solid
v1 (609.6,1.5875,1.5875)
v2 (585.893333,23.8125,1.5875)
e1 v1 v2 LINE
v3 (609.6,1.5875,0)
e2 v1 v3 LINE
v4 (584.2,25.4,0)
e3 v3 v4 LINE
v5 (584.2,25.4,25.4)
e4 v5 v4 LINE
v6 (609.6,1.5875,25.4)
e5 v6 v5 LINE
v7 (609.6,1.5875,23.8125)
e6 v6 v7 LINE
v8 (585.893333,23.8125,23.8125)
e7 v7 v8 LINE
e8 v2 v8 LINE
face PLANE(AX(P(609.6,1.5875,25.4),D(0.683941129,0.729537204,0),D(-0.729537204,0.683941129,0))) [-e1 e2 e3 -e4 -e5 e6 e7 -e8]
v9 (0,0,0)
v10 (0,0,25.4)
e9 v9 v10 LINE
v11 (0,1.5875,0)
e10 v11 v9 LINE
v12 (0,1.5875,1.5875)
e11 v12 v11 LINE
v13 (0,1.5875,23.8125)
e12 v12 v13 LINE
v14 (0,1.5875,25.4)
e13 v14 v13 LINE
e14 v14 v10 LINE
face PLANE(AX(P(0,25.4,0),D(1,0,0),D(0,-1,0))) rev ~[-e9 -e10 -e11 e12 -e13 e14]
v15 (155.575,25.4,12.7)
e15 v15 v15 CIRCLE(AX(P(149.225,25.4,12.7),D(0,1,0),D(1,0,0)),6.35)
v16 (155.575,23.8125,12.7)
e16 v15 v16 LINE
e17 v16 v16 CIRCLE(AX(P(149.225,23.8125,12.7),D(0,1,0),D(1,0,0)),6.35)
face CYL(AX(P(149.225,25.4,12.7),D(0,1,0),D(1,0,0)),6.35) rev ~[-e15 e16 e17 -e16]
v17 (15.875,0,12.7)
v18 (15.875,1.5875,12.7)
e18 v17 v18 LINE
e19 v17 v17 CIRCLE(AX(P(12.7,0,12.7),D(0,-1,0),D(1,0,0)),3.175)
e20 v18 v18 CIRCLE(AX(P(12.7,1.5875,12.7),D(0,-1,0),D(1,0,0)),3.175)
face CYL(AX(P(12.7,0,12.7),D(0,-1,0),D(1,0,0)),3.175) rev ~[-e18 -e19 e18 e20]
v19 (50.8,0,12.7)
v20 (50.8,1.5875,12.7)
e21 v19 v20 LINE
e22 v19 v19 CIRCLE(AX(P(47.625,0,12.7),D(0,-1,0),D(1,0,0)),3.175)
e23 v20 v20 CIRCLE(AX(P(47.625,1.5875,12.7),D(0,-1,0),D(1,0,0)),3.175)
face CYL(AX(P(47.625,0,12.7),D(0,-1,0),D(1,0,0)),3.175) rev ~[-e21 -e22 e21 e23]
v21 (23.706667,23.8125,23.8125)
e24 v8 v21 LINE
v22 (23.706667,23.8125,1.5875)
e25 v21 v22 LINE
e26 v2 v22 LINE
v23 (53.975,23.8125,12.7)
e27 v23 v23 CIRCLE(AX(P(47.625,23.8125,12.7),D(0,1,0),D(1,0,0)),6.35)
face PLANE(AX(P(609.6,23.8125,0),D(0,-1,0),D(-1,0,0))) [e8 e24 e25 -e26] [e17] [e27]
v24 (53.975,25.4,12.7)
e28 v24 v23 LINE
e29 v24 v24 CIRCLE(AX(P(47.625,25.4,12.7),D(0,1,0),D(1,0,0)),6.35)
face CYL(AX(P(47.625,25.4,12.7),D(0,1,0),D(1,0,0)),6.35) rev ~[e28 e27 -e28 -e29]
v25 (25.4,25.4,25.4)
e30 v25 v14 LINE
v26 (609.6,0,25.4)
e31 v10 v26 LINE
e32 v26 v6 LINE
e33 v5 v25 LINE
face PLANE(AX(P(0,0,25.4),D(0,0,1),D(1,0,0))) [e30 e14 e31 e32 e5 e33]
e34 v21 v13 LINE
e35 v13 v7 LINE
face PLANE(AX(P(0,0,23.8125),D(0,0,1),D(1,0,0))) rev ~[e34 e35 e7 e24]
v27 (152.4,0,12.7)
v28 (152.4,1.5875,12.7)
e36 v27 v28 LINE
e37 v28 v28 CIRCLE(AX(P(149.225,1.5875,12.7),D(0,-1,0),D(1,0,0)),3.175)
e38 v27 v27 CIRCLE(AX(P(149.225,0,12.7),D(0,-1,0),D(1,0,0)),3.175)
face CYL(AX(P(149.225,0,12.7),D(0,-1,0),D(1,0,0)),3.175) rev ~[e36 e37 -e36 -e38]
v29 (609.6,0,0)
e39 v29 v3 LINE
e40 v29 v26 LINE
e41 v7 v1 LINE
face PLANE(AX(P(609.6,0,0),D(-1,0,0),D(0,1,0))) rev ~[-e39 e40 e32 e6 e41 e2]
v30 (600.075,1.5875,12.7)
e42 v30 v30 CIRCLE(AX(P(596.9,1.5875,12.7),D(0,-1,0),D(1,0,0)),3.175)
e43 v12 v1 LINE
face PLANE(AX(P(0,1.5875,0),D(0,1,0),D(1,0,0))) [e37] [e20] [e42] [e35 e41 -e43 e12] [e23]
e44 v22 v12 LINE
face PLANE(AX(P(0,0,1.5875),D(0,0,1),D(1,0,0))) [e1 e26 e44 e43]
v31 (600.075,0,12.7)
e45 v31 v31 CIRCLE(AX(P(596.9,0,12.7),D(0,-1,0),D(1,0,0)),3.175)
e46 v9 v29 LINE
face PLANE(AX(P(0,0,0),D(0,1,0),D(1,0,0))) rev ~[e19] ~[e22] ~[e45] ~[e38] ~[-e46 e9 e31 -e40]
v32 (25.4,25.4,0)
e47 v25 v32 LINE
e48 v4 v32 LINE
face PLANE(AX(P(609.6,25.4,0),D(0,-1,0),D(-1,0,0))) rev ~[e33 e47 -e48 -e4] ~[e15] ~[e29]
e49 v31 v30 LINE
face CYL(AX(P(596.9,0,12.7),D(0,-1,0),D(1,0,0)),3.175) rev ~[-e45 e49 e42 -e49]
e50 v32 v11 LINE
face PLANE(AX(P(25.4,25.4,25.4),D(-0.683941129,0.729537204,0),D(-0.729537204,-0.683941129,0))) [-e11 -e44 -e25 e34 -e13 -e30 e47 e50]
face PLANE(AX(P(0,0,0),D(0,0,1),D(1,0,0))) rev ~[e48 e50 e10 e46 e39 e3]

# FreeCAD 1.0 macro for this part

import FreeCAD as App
import Part
import Sketcher
from FreeCAD import Vector
Q = App.Units.Quantity


def faces_at(feature, points):
    """Names of the faces that lie closest to the given points."""
    faces = feature.Shape.Faces
    near = lambda p: min(range(len(faces)), key=lambda i: faces[i].distToShape(Part.Vertex(*p))[0])
    return sorted({f"Face{near(p) + 1}" for p in points})

doc = App.newDocument("Part")
body = doc.addObject("PartDesign::Body", "Body")

sketch1 = body.newObject("Sketcher::SketchObject", "Sketch")
sketch1.AttachmentSupport = (doc.getObject("XY_Plane"), [""])
sketch1.MapMode = "FlatFace"
sketch1.addGeometry([
    Part.LineSegment(Vector(0, 25, 0), Vector(0, 0, 0)),
    Part.LineSegment(Vector(0, 0, 0), Vector(610, 0, 0)),
    Part.LineSegment(Vector(610, 0, 0), Vector(610, 25, 0)),
    Part.LineSegment(Vector(610, 25, 0), Vector(0, 25, 0)),
], False)
sketch1.addConstraint([
    Sketcher.Constraint("Coincident", 0, 2, 1, 1),
    Sketcher.Constraint("Coincident", 1, 2, 2, 1),
    Sketcher.Constraint("Coincident", 2, 2, 3, 1),
    Sketcher.Constraint("Coincident", 3, 2, 0, 1),
    Sketcher.Constraint("Vertical", 0),
    Sketcher.Constraint("Horizontal", 1),
    Sketcher.Constraint("Vertical", 2),
    Sketcher.Constraint("Horizontal", 3),
    Sketcher.Constraint("Coincident", 0, 2, -1, 1),
    Sketcher.Constraint("DistanceX", 1, 1, 1, 2, Q("24 in")),
    Sketcher.Constraint("DistanceY", 0, 2, 0, 1, Q("1 in")),
])
pad1 = body.newObject("PartDesign::Pad", "Pad")
pad1.Profile = sketch1
pad1.Length = Q("1 in")
doc.recompute()

thickness = body.newObject("PartDesign::Thickness", "Thickness")
thickness.Base = (pad1, faces_at(pad1, [(0, 16.933, 8.467), (609.6, 8.467, 8.467)]))
thickness.Value = Q("0.0625 in")
thickness.Reversed = True
thickness.Join = "Intersection"

sketch2 = body.newObject("Sketcher::SketchObject", "Sketch001")
sketch2.AttachmentSupport = (doc.getObject("XY_Plane"), [""])
sketch2.MapMode = "FlatFace"
sketch2.AttachmentOffset = App.Placement(Vector(0, 0, 1 * 25.4), App.Rotation())
sketch2.addGeometry([
    Part.LineSegment(Vector(610, 25, 0), Vector(584, 25, 0)),
    Part.LineSegment(Vector(584, 25, 0), Vector(610, 2, 0)),
    Part.LineSegment(Vector(610, 2, 0), Vector(610, 25, 0)),
    Part.LineSegment(Vector(0, 25, 0), Vector(0, 2, 0)),
    Part.LineSegment(Vector(0, 2, 0), Vector(25, 25, 0)),
    Part.LineSegment(Vector(25, 25, 0), Vector(0, 25, 0)),
], False)
sketch2.addConstraint([
    Sketcher.Constraint("Coincident", 0, 2, 1, 1),
    Sketcher.Constraint("Coincident", 1, 2, 2, 1),
    Sketcher.Constraint("Coincident", 2, 2, 0, 1),
    Sketcher.Constraint("Coincident", 3, 2, 4, 1),
    Sketcher.Constraint("Coincident", 4, 2, 5, 1),
    Sketcher.Constraint("Coincident", 5, 2, 3, 1),
    Sketcher.Constraint("Horizontal", 0),
    Sketcher.Constraint("Vertical", 2),
    Sketcher.Constraint("Vertical", 3),
    Sketcher.Constraint("Horizontal", 5),
    Sketcher.Constraint("PointOnObject", 3, 2, -2),
    Sketcher.Constraint("Horizontal", 1, 2, 3, 2),
    Sketcher.Constraint("Horizontal", 2, 2, 4, 2),
    Sketcher.Constraint("Equal", 0, 5),
    Sketcher.Constraint("DistanceX", 0, 2, 0, 1, Q("1 in")),
    Sketcher.Constraint("DistanceY", -1, 1, 0, 2, Q("1 in")),
    Sketcher.Constraint("DistanceY", -1, 1, 1, 2, Q("0.0625 in")),
    Sketcher.Constraint("DistanceX", -1, 1, 0, 2, Q("23 in")),
])
pocket1 = body.newObject("PartDesign::Pocket", "Pocket")
pocket1.Profile = sketch2
pocket1.Type = "ThroughAll"

sketch3 = body.newObject("Sketcher::SketchObject", "Sketch002")
sketch3.AttachmentSupport = (doc.getObject("XZ_Plane"), [""])
sketch3.MapMode = "FlatFace"
sketch3.addGeometry([
    Part.Circle(Vector(12.7, 12.7, 0), Vector(0, 0, 1), 3.2),
    Part.Circle(Vector(596.9, 12.7, 0), Vector(0, 0, 1), 3.2),
], False)
sketch3.addConstraint([
    Sketcher.Constraint("Equal", 0, 1),
    Sketcher.Constraint("Horizontal", 0, 3, 1, 3),
    Sketcher.Constraint("Diameter", 0, Q("0.25 in")),
    Sketcher.Constraint("DistanceX", -1, 1, 0, 3, Q("0.5 in")),
    Sketcher.Constraint("DistanceY", -1, 1, 0, 3, Q("0.5 in")),
    Sketcher.Constraint("DistanceX", 0, 3, 1, 3, Q("23 in")),
])
pocket2 = body.newObject("PartDesign::Pocket", "Pocket001")
pocket2.Profile = sketch3
pocket2.Type = "ThroughAll"

sketch4 = body.newObject("Sketcher::SketchObject", "Sketch003")
sketch4.AttachmentSupport = (doc.getObject("XZ_Plane"), [""])
sketch4.MapMode = "FlatFace"
sketch4.addGeometry([
    Part.Circle(Vector(47.6, 12.7, 0), Vector(0, 0, 1), 3.2),
    Part.Circle(Vector(149.2, 12.7, 0), Vector(0, 0, 1), 3.2),
], False)
sketch4.addConstraint([
    Sketcher.Constraint("Equal", 0, 1),
    Sketcher.Constraint("Horizontal", 0, 3, 1, 3),
    Sketcher.Constraint("Diameter", 0, Q("0.25 in")),
    Sketcher.Constraint("DistanceX", 0, 3, 1, 3, Q("4 in")),
    Sketcher.Constraint("DistanceX", -1, 1, 0, 3, Q("1.875 in")),
    Sketcher.Constraint("DistanceY", -1, 1, 0, 3, Q("0.5 in")),
])
pocket3 = body.newObject("PartDesign::Pocket", "Pocket002")
pocket3.Profile = sketch4
pocket3.Type = "ThroughAll"

sketch5 = body.newObject("Sketcher::SketchObject", "Sketch004")
sketch5.AttachmentSupport = (doc.getObject("XZ_Plane"), [""])
sketch5.MapMode = "FlatFace"
sketch5.AttachmentOffset = App.Placement(Vector(0, 0, -1 * 25.4), App.Rotation())
sketch5.addGeometry([
    Part.Circle(Vector(47.6, 12.7, 0), Vector(0, 0, 1), 6.3),
    Part.Circle(Vector(47.6, 12.7, 0), Vector(0, 0, 1), 3.2),
    Part.Circle(Vector(149.2, 12.7, 0), Vector(0, 0, 1), 6.3),
    Part.Circle(Vector(149.2, 12.7, 0), Vector(0, 0, 1), 3.2),
], False)
sketch5.addConstraint([
    Sketcher.Constraint("Coincident", 1, 3, 0, 3),
    Sketcher.Constraint("Coincident", 3, 3, 2, 3),
    Sketcher.Constraint("Equal", 0, 2),
    Sketcher.Constraint("Equal", 1, 3),
    Sketcher.Constraint("Horizontal", 1, 3, 2, 3),
    Sketcher.Constraint("Diameter", 0, Q("0.5 in")),
    Sketcher.Constraint("DistanceY", -1, 1, 0, 3, Q("0.5 in")),
    Sketcher.Constraint("Diameter", 1, Q("0.25 in")),
    Sketcher.Constraint("DistanceX", 0, 3, 2, 3, Q("4 in")),
    Sketcher.Constraint("DistanceX", -1, 1, 0, 3, Q("1.875 in")),
])
pocket4 = body.newObject("PartDesign::Pocket", "Pocket003")
pocket4.Profile = sketch5
pocket4.Type = "UpToFirst"
pocket4.Reversed = True

doc.recompute()
